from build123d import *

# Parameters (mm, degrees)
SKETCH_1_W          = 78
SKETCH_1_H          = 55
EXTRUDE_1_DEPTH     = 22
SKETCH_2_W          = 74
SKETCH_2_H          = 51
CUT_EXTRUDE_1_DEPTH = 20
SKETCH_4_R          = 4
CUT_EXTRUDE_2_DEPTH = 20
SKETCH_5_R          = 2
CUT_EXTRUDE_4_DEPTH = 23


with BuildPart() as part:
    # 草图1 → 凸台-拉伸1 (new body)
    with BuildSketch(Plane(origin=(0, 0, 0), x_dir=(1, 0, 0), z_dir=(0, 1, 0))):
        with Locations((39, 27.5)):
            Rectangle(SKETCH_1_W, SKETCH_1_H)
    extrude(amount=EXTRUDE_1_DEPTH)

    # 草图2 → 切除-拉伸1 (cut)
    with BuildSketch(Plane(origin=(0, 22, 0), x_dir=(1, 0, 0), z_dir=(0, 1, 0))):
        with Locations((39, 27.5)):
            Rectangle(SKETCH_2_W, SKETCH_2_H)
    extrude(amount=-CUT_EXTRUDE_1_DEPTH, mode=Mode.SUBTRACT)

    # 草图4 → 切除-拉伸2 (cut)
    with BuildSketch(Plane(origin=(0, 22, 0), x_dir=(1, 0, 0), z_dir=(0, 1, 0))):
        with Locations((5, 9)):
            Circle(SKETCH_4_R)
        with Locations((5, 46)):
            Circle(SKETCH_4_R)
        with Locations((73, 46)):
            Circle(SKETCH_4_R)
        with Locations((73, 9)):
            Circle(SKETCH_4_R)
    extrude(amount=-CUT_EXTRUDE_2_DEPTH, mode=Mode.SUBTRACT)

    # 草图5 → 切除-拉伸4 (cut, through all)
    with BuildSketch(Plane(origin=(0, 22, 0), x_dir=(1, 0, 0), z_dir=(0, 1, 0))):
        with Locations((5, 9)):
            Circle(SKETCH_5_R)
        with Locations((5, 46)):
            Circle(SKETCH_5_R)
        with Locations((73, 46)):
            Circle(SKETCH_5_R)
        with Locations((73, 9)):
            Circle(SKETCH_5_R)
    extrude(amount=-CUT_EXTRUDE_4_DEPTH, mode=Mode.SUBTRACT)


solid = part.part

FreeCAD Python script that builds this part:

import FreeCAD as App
import Part
import Sketcher

doc = App.newDocument("Part")
body = doc.addObject("PartDesign::Body", "Body")

# Sketch on XZ plane
sketch1 = doc.addObject("Sketcher::SketchObject", "Sketch")
body.addObject(sketch1)
sketch1.AttachmentSupport = (doc.XZ_Plane, [""])
sketch1.MapMode = "FlatFace"
sketch1.addGeometry(Part.LineSegment(App.Vector(0, -55, 0), App.Vector(0, 0, 0)), False)
sketch1.addGeometry(Part.LineSegment(App.Vector(0, 0, 0), App.Vector(78, 0, 0)), False)
sketch1.addGeometry(Part.LineSegment(App.Vector(78, 0, 0), App.Vector(78, -55, 0)), False)
sketch1.addGeometry(Part.LineSegment(App.Vector(78, -55, 0), App.Vector(0, -55, 0)), False)
sketch1.addConstraint(Sketcher.Constraint("Coincident", 0, 2, 1, 1))
sketch1.addConstraint(Sketcher.Constraint("Coincident", 1, 2, 2, 1))
sketch1.addConstraint(Sketcher.Constraint("Coincident", 2, 2, 3, 1))
sketch1.addConstraint(Sketcher.Constraint("Coincident", 3, 2, 0, 1))
sketch1.addConstraint(Sketcher.Constraint("Vertical", 0))
sketch1.addConstraint(Sketcher.Constraint("Horizontal", 1))
sketch1.addConstraint(Sketcher.Constraint("Vertical", 2))
sketch1.addConstraint(Sketcher.Constraint("Horizontal", 3))
sketch1.addConstraint(Sketcher.Constraint("Coincident", 0, 2, -1, 1))
sketch1.addConstraint(Sketcher.Constraint("DistanceX", 1, 1, 1, 2, 78.0))
sketch1.addConstraint(Sketcher.Constraint("DistanceY", 0, 1, 0, 2, 55.0))
pad1 = doc.addObject("PartDesign::Pad", "Pad")
body.addObject(pad1)
pad1.Profile = sketch1
pad1.Length = 22
pad1.Reversed = True

# Sketch on XZ plane
sketch2 = doc.addObject("Sketcher::SketchObject", "Sketch001")
body.addObject(sketch2)
sketch2.AttachmentSupport = (doc.XZ_Plane, [""])
sketch2.MapMode = "FlatFace"
sketch2.AttachmentOffset = App.Placement(App.Vector(0, 0, -22), App.Rotation())
sketch2.addGeometry(Part.LineSegment(App.Vector(2, -53, 0), App.Vector(2, -2, 0)), False)
sketch2.addGeometry(Part.LineSegment(App.Vector(2, -2, 0), App.Vector(76, -2, 0)), False)
sketch2.addGeometry(Part.LineSegment(App.Vector(76, -2, 0), App.Vector(76, -53, 0)), False)
sketch2.addGeometry(Part.LineSegment(App.Vector(76, -53, 0), App.Vector(2, -53, 0)), False)
sketch2.addConstraint(Sketcher.Constraint("Coincident", 0, 2, 1, 1))
sketch2.addConstraint(Sketcher.Constraint("Coincident", 1, 2, 2, 1))
sketch2.addConstraint(Sketcher.Constraint("Coincident", 2, 2, 3, 1))
sketch2.addConstraint(Sketcher.Constraint("Coincident", 3, 2, 0, 1))
sketch2.addConstraint(Sketcher.Constraint("Vertical", 0))
sketch2.addConstraint(Sketcher.Constraint("Horizontal", 1))
sketch2.addConstraint(Sketcher.Constraint("Vertical", 2))
sketch2.addConstraint(Sketcher.Constraint("Horizontal", 3))
sketch2.addConstraint(Sketcher.Constraint("DistanceX", 1, 1, 1, 2, 74.0))
sketch2.addConstraint(Sketcher.Constraint("DistanceY", 0, 1, 0, 2, 51.0))
sketch2.addConstraint(Sketcher.Constraint("DistanceX", -1, 1, 0, 2, 2.0))
sketch2.addConstraint(Sketcher.Constraint("DistanceY", 0, 2, -1, 1, 2.0))
pocket1 = doc.addObject("PartDesign::Pocket", "Pocket")
body.addObject(pocket1)
pocket1.Profile = sketch2
pocket1.Length = 20
pocket1.Reversed = True

# Sketch on XZ plane
sketch3 = doc.addObject("Sketcher::SketchObject", "Sketch002")
body.addObject(sketch3)
sketch3.AttachmentSupport = (doc.XZ_Plane, [""])
sketch3.MapMode = "FlatFace"
sketch3.AttachmentOffset = App.Placement(App.Vector(0, 0, -22), App.Rotation())
sketch3.addGeometry(Part.Circle(App.Vector(5, -9, 0), App.Vector(0, 0, 1), 4), False)
sketch3.addGeometry(Part.Circle(App.Vector(5, -46, 0), App.Vector(0, 0, 1), 4), False)
sketch3.addGeometry(Part.Circle(App.Vector(73, -46, 0), App.Vector(0, 0, 1), 4), False)
sketch3.addGeometry(Part.Circle(App.Vector(73, -9, 0), App.Vector(0, 0, 1), 4), False)
sketch3.addConstraint(Sketcher.Constraint("Equal", 0, 1))
sketch3.addConstraint(Sketcher.Constraint("Equal", 1, 2))
sketch3.addConstraint(Sketcher.Constraint("Equal", 2, 3))
sketch3.addConstraint(Sketcher.Constraint("Horizontal", 1, 3, 2, 3))
sketch3.addConstraint(Sketcher.Constraint("Horizontal", 0, 3, 3, 3))
sketch3.addConstraint(Sketcher.Constraint("Vertical", 0, 3, 1, 3))
sketch3.addConstraint(Sketcher.Constraint("Vertical", 2, 3, 3, 3))
sketch3.addConstraint(Sketcher.Constraint("Diameter", 0, 8.0))
sketch3.addConstraint(Sketcher.Constraint("DistanceX", -1, 1, 0, 3, 5.0))
sketch3.addConstraint(Sketcher.Constraint("DistanceY", 0, 3, -1, 1, 9.0))
sketch3.addConstraint(Sketcher.Constraint("DistanceY", 1, 3, -1, 1, 46.0))
sketch3.addConstraint(Sketcher.Constraint("DistanceX", -1, 1, 2, 3, 73.0))
pocket2 = doc.addObject("PartDesign::Pocket", "Pocket001")
body.addObject(pocket2)
pocket2.Profile = sketch3
pocket2.Length = 20
pocket2.Reversed = True

# Sketch on XZ plane
sketch4 = doc.addObject("Sketcher::SketchObject", "Sketch003")
body.addObject(sketch4)
sketch4.AttachmentSupport = (doc.XZ_Plane, [""])
sketch4.MapMode = "FlatFace"
sketch4.AttachmentOffset = App.Placement(App.Vector(0, 0, -22), App.Rotation())
sketch4.addGeometry(Part.Circle(App.Vector(5, -9, 0), App.Vector(0, 0, 1), 2), False)
sketch4.addGeometry(Part.Circle(App.Vector(5, -46, 0), App.Vector(0, 0, 1), 2), False)
sketch4.addGeometry(Part.Circle(App.Vector(73, -46, 0), App.Vector(0, 0, 1), 2), False)
sketch4.addGeometry(Part.Circle(App.Vector(73, -9, 0), App.Vector(0, 0, 1), 2), False)
sketch4.addConstraint(Sketcher.Constraint("Equal", 0, 1))
sketch4.addConstraint(Sketcher.Constraint("Equal", 1, 2))
sketch4.addConstraint(Sketcher.Constraint("Equal", 2, 3))
sketch4.addConstraint(Sketcher.Constraint("Horizontal", 1, 3, 2, 3))
sketch4.addConstraint(Sketcher.Constraint("Horizontal", 0, 3, 3, 3))
sketch4.addConstraint(Sketcher.Constraint("Vertical", 0, 3, 1, 3))
sketch4.addConstraint(Sketcher.Constraint("Vertical", 2, 3, 3, 3))
sketch4.addConstraint(Sketcher.Constraint("Diameter", 0, 4.0))
sketch4.addConstraint(Sketcher.Constraint("DistanceX", -1, 1, 0, 3, 5.0))
sketch4.addConstraint(Sketcher.Constraint("DistanceY", 0, 3, -1, 1, 9.0))
sketch4.addConstraint(Sketcher.Constraint("DistanceY", 1, 3, -1, 1, 46.0))
sketch4.addConstraint(Sketcher.Constraint("DistanceX", -1, 1, 2, 3, 73.0))
pocket3 = doc.addObject("PartDesign::Pocket", "Pocket002")
body.addObject(pocket3)
pocket3.Profile = sketch4
pocket3.Type = "ThroughAll"
pocket3.Reversed = True

doc.recompute()
